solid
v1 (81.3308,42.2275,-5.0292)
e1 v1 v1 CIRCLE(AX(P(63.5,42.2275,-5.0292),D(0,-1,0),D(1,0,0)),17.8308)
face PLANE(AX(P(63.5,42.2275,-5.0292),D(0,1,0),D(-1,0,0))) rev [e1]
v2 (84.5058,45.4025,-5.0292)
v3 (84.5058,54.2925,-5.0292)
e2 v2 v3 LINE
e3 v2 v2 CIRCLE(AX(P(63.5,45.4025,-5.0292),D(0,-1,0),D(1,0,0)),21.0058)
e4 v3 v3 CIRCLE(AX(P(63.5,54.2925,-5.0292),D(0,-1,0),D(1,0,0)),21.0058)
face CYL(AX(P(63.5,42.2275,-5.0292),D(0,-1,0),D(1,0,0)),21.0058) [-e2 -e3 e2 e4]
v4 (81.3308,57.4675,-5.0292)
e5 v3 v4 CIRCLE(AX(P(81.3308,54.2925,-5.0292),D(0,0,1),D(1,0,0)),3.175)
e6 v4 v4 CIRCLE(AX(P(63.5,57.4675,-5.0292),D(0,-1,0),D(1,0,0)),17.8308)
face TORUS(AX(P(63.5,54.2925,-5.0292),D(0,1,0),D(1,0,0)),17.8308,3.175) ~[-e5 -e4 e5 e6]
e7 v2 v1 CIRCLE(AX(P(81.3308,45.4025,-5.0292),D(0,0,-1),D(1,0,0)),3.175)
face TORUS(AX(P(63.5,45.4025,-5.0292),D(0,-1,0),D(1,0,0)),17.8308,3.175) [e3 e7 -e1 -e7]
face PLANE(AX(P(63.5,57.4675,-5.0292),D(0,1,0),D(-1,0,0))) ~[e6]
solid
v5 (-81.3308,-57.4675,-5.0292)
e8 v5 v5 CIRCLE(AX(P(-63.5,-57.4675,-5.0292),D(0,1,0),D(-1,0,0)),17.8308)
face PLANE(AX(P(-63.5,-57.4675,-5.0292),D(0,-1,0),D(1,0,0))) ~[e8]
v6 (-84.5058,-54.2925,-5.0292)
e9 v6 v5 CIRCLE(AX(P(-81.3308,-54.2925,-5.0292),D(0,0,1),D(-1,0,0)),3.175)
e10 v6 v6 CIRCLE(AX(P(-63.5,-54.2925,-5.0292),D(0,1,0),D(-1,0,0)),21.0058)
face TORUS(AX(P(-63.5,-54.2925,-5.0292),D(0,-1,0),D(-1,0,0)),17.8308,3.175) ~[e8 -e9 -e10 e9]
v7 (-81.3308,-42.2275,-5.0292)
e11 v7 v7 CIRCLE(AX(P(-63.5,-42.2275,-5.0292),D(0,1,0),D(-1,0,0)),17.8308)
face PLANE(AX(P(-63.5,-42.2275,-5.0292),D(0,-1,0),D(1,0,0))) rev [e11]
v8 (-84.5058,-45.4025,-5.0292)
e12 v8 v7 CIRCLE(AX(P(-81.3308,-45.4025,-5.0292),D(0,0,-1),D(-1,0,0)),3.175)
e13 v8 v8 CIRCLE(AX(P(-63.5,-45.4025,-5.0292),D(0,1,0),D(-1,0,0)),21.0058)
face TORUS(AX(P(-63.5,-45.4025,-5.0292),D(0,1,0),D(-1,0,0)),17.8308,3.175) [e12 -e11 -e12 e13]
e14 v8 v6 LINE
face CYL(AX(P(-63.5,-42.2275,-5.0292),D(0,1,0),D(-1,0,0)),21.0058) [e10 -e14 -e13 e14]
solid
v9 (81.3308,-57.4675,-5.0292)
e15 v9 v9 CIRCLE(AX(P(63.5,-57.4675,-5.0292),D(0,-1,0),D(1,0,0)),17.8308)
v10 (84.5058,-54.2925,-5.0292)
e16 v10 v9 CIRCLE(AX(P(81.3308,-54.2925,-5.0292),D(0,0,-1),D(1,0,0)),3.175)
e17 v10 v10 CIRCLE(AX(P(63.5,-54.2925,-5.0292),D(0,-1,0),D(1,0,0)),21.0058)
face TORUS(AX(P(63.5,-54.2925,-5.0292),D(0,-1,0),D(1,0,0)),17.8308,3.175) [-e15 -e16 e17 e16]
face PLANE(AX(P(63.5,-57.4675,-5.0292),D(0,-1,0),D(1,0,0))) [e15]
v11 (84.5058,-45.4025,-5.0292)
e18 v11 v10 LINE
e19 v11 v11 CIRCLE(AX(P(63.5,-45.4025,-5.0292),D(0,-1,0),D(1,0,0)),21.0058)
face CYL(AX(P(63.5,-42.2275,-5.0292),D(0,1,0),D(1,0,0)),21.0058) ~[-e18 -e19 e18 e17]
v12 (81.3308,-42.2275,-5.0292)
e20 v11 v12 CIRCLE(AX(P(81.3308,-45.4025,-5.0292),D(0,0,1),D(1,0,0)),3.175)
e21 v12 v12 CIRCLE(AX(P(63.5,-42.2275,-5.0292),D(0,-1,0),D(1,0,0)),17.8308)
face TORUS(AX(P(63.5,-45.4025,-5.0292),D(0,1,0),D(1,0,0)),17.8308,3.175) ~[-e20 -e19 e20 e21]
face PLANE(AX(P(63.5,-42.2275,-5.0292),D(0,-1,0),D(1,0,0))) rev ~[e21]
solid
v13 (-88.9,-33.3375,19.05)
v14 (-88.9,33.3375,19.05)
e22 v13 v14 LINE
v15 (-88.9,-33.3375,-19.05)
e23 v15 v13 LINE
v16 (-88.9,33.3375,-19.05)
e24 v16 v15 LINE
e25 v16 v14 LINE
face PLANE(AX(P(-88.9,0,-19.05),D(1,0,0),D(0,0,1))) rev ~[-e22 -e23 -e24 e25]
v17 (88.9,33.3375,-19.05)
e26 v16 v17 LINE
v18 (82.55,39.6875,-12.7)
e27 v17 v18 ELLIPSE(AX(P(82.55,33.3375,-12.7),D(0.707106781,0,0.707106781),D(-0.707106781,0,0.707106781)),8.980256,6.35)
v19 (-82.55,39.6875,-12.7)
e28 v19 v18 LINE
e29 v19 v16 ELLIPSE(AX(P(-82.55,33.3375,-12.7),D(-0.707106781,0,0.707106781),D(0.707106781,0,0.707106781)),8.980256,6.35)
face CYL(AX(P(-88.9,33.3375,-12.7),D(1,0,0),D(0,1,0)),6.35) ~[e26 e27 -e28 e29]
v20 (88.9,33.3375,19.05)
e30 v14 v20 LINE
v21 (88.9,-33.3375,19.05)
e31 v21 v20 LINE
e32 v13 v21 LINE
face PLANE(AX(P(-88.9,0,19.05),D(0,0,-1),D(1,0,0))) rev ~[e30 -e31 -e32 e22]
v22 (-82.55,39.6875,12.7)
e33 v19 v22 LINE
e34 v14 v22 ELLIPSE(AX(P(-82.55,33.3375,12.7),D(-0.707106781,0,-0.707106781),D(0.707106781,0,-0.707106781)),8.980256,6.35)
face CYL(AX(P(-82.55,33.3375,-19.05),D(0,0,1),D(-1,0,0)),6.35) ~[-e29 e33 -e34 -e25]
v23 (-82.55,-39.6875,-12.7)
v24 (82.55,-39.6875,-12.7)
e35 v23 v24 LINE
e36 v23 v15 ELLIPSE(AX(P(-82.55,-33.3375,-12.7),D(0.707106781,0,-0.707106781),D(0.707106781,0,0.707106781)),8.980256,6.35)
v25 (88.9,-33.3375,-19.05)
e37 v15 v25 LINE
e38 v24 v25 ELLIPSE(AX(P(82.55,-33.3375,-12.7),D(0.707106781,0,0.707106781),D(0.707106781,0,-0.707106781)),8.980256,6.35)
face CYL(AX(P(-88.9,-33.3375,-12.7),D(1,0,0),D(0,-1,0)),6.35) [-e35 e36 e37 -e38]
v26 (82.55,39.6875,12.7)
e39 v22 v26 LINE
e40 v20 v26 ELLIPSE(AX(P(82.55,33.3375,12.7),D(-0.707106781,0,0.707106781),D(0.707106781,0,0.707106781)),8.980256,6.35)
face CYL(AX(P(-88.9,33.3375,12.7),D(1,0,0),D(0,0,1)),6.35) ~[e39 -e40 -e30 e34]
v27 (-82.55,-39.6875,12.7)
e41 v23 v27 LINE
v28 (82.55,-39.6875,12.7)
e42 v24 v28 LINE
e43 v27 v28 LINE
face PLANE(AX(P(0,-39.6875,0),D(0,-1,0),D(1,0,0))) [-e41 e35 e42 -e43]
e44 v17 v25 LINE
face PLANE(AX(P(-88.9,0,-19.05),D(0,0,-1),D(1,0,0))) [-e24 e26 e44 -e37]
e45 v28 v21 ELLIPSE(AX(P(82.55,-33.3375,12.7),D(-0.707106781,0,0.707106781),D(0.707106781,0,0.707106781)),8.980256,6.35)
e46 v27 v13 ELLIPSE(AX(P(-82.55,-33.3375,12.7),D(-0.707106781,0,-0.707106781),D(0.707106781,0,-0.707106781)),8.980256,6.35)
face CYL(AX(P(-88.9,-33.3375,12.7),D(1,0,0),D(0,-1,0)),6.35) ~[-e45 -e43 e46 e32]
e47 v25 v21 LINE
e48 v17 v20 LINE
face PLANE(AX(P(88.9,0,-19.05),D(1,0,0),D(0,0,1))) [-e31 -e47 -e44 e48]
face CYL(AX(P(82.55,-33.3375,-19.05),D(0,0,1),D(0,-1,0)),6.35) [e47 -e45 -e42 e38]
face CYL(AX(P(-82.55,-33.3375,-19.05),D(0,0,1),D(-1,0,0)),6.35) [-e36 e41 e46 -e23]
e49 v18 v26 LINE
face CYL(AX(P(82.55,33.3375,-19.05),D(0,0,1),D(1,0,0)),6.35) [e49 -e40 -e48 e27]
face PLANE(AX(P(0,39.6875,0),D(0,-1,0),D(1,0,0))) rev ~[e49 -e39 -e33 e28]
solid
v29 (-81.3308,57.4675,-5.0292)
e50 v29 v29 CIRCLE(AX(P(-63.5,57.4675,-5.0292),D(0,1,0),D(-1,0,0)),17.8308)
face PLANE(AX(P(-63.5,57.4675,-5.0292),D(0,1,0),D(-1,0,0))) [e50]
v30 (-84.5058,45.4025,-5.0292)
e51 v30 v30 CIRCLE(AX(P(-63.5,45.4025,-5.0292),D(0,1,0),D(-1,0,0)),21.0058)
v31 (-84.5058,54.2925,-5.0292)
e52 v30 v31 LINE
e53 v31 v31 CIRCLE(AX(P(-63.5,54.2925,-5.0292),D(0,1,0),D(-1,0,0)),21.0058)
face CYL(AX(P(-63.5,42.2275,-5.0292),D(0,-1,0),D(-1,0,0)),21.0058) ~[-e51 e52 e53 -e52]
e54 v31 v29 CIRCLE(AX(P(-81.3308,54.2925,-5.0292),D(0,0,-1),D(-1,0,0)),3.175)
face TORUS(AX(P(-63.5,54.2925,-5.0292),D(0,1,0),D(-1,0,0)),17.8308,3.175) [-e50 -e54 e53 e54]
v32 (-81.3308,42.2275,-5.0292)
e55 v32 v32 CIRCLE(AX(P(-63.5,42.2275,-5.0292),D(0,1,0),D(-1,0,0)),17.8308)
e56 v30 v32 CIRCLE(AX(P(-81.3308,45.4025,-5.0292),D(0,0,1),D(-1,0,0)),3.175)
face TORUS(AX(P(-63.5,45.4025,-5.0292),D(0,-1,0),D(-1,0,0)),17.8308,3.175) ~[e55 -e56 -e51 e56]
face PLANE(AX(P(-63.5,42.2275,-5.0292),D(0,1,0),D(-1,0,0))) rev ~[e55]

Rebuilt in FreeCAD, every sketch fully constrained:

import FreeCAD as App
import Part
import Sketcher

V = App.Vector
Q = App.Units.Quantity


def edges_at(feature, points):
    """Names of the edges that pass closest to the given points."""
    edges = feature.Shape.Edges
    near = lambda p: min(range(len(edges)), key=lambda i: edges[i].distToShape(Part.Vertex(*p))[0])
    return sorted({f"Edge{near(p) + 1}" for p in points})

doc = App.newDocument("Part")
body = doc.addObject("PartDesign::Body", "Body")

sketch1 = body.newObject("Sketcher::SketchObject", "Sketch")
sketch1.AttachmentSupport = (doc.getObject("XZ_Plane"), [""])
sketch1.MapMode = "FlatFace"
sketch1.addGeometry([
    Part.LineSegment(V(-88.9, 19.05, 0), V(-88.9, -19.05, 0)),
    Part.LineSegment(V(-88.9, -19.05, 0), V(88.9, -19.05, 0)),
    Part.LineSegment(V(88.9, -19.05, 0), V(88.9, 19.05, 0)),
    Part.LineSegment(V(88.9, 19.05, 0), V(-88.9, 19.05, 0)),
], False)
sketch1.addConstraint([
    Sketcher.Constraint("Coincident", 0, 2, 1, 1),
    Sketcher.Constraint("Coincident", 1, 2, 2, 1),
    Sketcher.Constraint("Coincident", 2, 2, 3, 1),
    Sketcher.Constraint("Coincident", 3, 2, 0, 1),
    Sketcher.Constraint("Vertical", 0),
    Sketcher.Constraint("Horizontal", 1),
    Sketcher.Constraint("Vertical", 2),
    Sketcher.Constraint("Horizontal", 3),
    Sketcher.Constraint("Symmetric", 0, 2, 2, 2, -1, 1),
    Sketcher.Constraint("DistanceX", 1, 1, 1, 2, Q("7 in")),
    Sketcher.Constraint("DistanceY", 0, 2, 0, 1, Q("1.5 in")),
])
pad1 = body.newObject("PartDesign::Pad", "Pad")
pad1.Profile = sketch1
pad1.Length = Q("3.125 in")
pad1.Midplane = True
doc.recompute()

fillet = body.newObject("PartDesign::Fillet", "Fillet")
fillet.Base = (pad1, edges_at(pad1, [
    (0, -39.688, 19.05),
    (0, -39.688, -19.05),
    (-88.9, -39.688, 0),
    (88.9, -39.688, 0),
    (0, 39.688, 19.05),
    (88.9, 39.688, 0),
    (0, 39.688, -19.05),
    (-88.9, 39.688, 0),
]))
fillet.Radius = Q("0.25 in")
body2 = doc.addObject("PartDesign::Body", "Body001")

sketch2 = body2.newObject("Sketcher::SketchObject", "Sketch001")
sketch2.AttachmentSupport = (doc.getObject("XZ_Plane001"), [""])
sketch2.MapMode = "FlatFace"
sketch2.AttachmentOffset = App.Placement(V(0, 0, 1.6625 * 25.4), App.Rotation())
sketch2.addGeometry(Part.Circle(V(63.5, -5.0292, 0), V(0, 0, 1), 21.0058), False)
sketch2.addConstraint([
    Sketcher.Constraint("Diameter", 0, Q("1.654 in")),
    Sketcher.Constraint("DistanceX", -1, 1, 0, 3, Q("2.5 in")),
    Sketcher.Constraint("DistanceY", 0, 3, -1, 1, Q("0.198 in")),
])
pad2 = body2.newObject("PartDesign::Pad", "Pad001")
pad2.Profile = sketch2
pad2.Length = Q("0.6 in")
doc.recompute()

fillet2 = body2.newObject("PartDesign::Fillet", "Fillet001")
fillet2.Base = (pad2, edges_at(pad2, [(42.494, -57.468, -5.029), (42.494, -42.227, -5.029)]))
fillet2.Radius = Q("0.125 in")
body3 = doc.addObject("PartDesign::Body", "Body002")
doc.recompute()

mirroring = doc.addObject("Part::Mirroring", "Mirroring")
mirroring.Source = body2
mirroring.Base = V(0, 0, 0)
mirroring.Normal = V(0, -1, 0)
body3.BaseFeature = mirroring
doc.recompute()
body4 = doc.addObject("PartDesign::Body", "Body003")
doc.recompute()

mirroring2 = doc.addObject("Part::Mirroring", "Mirroring001")
mirroring2.Source = body2
mirroring2.Base = V(0, 0, 0)
mirroring2.Normal = V(1, 0, 0)
body4.BaseFeature = mirroring2
doc.recompute()
body5 = doc.addObject("PartDesign::Body", "Body004")
doc.recompute()

mirroring3 = doc.addObject("Part::Mirroring", "Mirroring002")
mirroring3.Source = body3
mirroring3.Base = V(0, 0, 0)
mirroring3.Normal = V(1, 0, 0)
body5.BaseFeature = mirroring3
doc.recompute()
mirroring.Visibility = False
mirroring2.Visibility = False
mirroring3.Visibility = False

doc.recompute()
